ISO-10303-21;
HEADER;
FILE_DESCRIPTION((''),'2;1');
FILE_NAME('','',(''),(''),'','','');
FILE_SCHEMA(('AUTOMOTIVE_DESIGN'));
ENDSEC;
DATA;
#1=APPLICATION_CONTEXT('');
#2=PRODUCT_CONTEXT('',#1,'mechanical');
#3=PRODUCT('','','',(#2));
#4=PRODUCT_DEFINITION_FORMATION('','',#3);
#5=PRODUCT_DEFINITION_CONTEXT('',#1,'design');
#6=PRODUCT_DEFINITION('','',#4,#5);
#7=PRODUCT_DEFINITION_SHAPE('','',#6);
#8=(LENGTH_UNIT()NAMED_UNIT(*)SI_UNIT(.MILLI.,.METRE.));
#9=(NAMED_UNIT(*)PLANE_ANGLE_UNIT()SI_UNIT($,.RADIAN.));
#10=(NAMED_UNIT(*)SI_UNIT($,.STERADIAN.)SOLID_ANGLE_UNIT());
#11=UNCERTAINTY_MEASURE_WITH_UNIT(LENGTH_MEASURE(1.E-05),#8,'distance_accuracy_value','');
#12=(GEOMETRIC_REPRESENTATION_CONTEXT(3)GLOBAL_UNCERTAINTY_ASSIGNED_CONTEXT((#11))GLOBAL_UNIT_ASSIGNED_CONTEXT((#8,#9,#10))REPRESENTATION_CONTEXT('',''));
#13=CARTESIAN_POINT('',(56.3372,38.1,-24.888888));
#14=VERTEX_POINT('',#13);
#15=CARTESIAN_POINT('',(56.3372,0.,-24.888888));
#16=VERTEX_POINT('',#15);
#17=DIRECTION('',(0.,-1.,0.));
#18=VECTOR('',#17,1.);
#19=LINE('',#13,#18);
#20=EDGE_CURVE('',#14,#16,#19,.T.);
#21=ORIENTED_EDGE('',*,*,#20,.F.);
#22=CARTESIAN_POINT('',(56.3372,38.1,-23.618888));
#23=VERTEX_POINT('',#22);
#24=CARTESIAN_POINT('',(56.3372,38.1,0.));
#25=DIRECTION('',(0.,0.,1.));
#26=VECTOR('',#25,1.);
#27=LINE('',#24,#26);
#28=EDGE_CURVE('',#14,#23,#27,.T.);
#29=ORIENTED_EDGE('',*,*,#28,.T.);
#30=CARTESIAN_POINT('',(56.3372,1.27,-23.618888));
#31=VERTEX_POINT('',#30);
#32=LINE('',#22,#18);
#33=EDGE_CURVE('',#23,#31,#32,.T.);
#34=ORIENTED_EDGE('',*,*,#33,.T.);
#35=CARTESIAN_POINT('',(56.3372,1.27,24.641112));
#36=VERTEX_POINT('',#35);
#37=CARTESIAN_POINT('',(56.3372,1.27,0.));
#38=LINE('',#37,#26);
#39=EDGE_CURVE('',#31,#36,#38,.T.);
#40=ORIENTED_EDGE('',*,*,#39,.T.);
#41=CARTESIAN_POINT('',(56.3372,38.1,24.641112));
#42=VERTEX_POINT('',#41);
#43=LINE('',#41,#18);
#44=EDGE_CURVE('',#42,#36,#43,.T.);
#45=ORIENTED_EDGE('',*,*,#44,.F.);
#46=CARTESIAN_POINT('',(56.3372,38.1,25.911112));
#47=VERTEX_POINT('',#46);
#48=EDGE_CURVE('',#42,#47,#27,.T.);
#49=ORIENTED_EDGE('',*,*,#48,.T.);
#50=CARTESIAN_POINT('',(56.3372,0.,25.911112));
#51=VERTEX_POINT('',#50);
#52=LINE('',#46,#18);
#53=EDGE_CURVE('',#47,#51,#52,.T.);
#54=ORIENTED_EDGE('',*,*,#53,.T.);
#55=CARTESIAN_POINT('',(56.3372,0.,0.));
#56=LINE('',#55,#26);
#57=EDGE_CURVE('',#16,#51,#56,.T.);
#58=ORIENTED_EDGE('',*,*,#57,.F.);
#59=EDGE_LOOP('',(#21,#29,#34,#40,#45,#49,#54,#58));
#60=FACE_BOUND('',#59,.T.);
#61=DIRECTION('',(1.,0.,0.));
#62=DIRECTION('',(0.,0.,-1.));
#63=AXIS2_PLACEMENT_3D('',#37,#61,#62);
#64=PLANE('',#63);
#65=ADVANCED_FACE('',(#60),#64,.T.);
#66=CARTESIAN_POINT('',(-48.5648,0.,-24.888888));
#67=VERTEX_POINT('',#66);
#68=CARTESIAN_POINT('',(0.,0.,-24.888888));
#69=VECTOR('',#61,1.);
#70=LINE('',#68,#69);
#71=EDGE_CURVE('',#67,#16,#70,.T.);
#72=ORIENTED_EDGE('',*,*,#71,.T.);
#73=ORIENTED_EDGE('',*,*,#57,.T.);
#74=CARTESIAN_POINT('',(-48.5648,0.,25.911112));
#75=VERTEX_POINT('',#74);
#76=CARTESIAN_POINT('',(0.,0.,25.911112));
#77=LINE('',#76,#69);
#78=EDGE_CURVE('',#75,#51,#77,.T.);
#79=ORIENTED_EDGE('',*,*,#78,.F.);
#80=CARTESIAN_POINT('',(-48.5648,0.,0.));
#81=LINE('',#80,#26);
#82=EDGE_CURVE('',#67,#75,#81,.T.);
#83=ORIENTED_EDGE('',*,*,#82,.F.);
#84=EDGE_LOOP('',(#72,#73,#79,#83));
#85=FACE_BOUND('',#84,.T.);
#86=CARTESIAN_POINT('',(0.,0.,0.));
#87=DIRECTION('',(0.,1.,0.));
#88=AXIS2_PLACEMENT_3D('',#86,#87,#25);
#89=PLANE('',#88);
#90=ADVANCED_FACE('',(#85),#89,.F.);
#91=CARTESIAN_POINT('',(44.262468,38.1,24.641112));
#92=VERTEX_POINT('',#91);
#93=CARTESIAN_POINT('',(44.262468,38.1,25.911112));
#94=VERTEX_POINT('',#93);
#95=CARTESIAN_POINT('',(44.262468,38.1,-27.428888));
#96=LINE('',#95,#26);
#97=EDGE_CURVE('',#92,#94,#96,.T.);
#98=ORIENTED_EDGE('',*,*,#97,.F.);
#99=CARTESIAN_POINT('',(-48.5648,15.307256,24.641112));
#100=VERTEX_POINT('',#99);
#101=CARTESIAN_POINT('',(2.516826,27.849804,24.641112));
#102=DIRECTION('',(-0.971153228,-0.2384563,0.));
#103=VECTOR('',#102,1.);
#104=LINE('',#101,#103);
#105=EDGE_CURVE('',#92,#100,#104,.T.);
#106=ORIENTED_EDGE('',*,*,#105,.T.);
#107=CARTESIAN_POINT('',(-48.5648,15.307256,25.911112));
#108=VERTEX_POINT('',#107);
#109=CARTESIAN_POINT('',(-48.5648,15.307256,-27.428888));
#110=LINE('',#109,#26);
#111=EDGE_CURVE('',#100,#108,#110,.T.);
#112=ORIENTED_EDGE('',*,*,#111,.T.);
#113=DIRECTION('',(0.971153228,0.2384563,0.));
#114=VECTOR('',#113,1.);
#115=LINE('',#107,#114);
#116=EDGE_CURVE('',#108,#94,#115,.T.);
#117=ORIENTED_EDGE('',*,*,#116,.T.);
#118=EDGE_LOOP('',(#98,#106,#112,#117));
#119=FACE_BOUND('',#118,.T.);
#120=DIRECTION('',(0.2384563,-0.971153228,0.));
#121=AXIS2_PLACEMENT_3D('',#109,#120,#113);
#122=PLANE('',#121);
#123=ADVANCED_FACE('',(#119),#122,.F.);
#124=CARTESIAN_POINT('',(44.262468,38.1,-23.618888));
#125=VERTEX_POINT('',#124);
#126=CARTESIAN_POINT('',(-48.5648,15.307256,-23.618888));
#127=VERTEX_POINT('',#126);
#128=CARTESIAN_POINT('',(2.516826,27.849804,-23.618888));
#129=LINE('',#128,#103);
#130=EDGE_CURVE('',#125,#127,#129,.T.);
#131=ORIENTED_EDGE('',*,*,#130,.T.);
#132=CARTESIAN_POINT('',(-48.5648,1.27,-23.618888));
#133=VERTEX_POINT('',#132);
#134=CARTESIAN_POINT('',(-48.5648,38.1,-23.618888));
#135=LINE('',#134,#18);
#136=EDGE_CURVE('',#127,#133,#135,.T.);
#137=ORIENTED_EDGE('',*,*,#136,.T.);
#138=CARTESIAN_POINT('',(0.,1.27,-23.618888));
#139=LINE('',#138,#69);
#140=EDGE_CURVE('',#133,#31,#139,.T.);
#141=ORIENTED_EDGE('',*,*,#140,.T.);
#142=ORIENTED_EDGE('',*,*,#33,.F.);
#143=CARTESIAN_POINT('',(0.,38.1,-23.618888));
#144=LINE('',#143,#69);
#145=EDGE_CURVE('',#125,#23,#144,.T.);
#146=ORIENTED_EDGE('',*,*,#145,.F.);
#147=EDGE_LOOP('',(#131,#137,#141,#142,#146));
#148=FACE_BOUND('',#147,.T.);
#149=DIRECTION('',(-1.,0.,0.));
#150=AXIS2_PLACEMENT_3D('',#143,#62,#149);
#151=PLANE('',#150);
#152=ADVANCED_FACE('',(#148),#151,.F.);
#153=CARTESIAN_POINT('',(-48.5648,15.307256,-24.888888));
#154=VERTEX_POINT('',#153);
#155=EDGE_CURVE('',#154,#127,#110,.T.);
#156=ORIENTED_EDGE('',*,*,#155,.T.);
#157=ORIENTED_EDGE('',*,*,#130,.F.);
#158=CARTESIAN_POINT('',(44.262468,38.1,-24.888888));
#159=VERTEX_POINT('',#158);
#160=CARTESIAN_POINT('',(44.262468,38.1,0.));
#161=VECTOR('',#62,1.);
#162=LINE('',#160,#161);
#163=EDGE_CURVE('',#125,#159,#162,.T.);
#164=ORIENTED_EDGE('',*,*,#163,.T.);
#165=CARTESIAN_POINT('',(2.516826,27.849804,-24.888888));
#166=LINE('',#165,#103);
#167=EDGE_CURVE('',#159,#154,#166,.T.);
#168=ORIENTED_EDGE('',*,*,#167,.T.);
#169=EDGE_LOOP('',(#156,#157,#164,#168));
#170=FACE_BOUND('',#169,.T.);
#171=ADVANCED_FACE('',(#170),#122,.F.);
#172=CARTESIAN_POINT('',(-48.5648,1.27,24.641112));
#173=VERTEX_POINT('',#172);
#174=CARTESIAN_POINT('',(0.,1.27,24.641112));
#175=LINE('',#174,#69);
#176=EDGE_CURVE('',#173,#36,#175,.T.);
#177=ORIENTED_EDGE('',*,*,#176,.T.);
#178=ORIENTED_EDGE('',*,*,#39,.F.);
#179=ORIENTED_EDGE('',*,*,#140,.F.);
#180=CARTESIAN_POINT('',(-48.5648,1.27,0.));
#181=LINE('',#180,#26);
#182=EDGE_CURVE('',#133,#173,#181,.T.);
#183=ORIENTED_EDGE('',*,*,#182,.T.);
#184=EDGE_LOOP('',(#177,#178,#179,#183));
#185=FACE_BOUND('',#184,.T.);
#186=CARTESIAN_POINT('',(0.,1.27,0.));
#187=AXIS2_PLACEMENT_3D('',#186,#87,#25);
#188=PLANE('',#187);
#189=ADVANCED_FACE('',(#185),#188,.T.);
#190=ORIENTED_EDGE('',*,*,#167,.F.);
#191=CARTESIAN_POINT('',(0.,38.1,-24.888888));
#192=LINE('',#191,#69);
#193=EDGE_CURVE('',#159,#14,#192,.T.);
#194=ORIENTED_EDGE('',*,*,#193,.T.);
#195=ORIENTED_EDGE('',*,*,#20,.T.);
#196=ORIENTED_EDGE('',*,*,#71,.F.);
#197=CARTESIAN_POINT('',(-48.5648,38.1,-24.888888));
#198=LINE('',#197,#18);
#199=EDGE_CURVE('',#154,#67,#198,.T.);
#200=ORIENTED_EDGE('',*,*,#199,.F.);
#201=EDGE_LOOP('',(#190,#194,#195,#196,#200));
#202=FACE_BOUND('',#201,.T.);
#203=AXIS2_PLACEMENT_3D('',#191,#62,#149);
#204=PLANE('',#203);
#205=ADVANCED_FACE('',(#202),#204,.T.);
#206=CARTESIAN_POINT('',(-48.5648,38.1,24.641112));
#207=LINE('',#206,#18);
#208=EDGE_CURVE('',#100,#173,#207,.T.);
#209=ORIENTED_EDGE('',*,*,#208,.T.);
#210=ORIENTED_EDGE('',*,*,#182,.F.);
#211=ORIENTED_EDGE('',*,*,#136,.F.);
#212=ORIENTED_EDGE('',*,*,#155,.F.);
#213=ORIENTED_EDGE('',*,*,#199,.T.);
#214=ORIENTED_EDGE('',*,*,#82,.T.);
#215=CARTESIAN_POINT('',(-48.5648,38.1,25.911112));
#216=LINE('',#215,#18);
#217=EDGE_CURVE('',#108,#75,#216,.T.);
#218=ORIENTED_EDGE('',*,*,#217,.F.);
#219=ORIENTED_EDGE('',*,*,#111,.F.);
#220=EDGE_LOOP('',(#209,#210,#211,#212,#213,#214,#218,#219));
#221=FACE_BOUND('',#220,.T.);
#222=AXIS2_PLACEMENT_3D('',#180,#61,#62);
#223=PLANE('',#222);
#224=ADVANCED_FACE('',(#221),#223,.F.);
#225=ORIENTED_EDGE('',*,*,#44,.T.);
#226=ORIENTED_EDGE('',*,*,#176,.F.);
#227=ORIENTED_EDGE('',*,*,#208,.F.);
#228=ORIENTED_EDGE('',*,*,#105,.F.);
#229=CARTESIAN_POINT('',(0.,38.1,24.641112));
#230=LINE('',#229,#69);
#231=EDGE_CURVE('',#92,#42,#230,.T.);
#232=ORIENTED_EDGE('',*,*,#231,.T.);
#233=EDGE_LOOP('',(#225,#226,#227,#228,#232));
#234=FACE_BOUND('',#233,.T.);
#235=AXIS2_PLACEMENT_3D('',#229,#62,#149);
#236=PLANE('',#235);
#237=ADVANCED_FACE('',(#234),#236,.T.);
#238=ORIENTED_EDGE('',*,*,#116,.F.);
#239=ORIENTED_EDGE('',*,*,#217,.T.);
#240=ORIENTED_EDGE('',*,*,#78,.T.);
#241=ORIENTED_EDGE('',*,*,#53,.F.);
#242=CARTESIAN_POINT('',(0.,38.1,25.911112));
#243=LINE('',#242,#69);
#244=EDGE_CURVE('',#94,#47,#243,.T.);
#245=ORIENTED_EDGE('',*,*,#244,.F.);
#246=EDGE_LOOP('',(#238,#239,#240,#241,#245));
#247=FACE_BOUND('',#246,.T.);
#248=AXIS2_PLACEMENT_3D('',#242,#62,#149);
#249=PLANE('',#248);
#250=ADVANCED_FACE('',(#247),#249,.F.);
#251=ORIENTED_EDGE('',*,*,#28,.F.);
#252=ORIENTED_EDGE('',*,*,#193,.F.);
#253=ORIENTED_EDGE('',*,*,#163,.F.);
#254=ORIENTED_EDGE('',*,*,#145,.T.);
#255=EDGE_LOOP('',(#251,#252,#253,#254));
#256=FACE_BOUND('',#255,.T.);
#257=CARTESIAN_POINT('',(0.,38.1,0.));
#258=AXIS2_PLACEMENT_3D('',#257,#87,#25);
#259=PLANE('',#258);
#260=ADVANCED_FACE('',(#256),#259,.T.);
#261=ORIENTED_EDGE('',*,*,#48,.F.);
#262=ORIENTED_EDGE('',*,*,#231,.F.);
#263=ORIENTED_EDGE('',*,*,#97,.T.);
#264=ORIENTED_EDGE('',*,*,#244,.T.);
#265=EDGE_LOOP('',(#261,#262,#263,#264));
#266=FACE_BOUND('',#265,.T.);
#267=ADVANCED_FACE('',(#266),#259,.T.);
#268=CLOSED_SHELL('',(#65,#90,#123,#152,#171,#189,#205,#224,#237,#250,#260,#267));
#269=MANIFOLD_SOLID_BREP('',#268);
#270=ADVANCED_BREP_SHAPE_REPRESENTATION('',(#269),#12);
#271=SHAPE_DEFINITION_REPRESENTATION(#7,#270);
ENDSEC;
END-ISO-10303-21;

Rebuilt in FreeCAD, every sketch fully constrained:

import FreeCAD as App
import Part
import Sketcher
Q = App.Units.Quantity

doc = App.newDocument("Part")
body = doc.addObject("PartDesign::Body", "Body")

sketch1 = doc.addObject("Sketcher::SketchObject", "Sketch")
body.addObject(sketch1)
sketch1.AttachmentSupport = (doc.XZ_Plane, [""])
sketch1.MapMode = "FlatFace"
sketch1.addGeometry(Part.LineSegment(App.Vector(-48.5648, -23.618888, 0), App.Vector(-48.5648, 24.641112, 0)), False)
sketch1.addGeometry(Part.LineSegment(App.Vector(-48.5648, 24.641112, 0), App.Vector(56.3372, 24.641112, 0)), False)
sketch1.addGeometry(Part.LineSegment(App.Vector(56.3372, 24.641112, 0), App.Vector(56.3372, -23.618888, 0)), False)
sketch1.addGeometry(Part.LineSegment(App.Vector(56.3372, -23.618888, 0), App.Vector(-48.5648, -23.618888, 0)), False)
sketch1.addConstraint(Sketcher.Constraint("Coincident", 0, 2, 1, 1))
sketch1.addConstraint(Sketcher.Constraint("Coincident", 1, 2, 2, 1))
sketch1.addConstraint(Sketcher.Constraint("Coincident", 2, 2, 3, 1))
sketch1.addConstraint(Sketcher.Constraint("Coincident", 3, 2, 0, 1))
sketch1.addConstraint(Sketcher.Constraint("Vertical", 0))
sketch1.addConstraint(Sketcher.Constraint("Horizontal", 1))
sketch1.addConstraint(Sketcher.Constraint("Vertical", 2))
sketch1.addConstraint(Sketcher.Constraint("Horizontal", 3))
sketch1.addConstraint(Sketcher.Constraint("DistanceY", 0, 1, 0, 2, Q("1.9 in")))
sketch1.addConstraint(Sketcher.Constraint("DistanceX", 1, 1, 1, 2, Q("4.13 in")))
sketch1.addConstraint(Sketcher.Constraint("DistanceX", 0, 2, -1, 1, Q("1.912 in")))
sketch1.addConstraint(Sketcher.Constraint("DistanceY", -1, 1, 0, 2, 24.641112))
pad1 = doc.addObject("PartDesign::Pad", "Pad")
body.addObject(pad1)
pad1.Profile = sketch1
pad1.Length = Q("0.05 in")
pad1.Reversed = True

sketch2 = doc.addObject("Sketcher::SketchObject", "Sketch001")
body.addObject(sketch2)
sketch2.AttachmentSupport = (doc.XZ_Plane, [""])
sketch2.MapMode = "FlatFace"
sketch2.addGeometry(Part.LineSegment(App.Vector(-48.5648, 24.641112, 0), App.Vector(-48.5648, 25.911112, 0)), False)
sketch2.addGeometry(Part.LineSegment(App.Vector(-48.5648, 25.911112, 0), App.Vector(56.3372, 25.911112, 0)), False)
sketch2.addGeometry(Part.LineSegment(App.Vector(56.3372, 25.911112, 0), App.Vector(56.3372, 24.641112, 0)), False)
sketch2.addGeometry(Part.LineSegment(App.Vector(56.3372, 24.641112, 0), App.Vector(-48.5648, 24.641112, 0)), False)
sketch2.addGeometry(Part.LineSegment(App.Vector(-48.5648, -24.888888, 0), App.Vector(-48.5648, -23.618888, 0)), False)
sketch2.addGeometry(Part.LineSegment(App.Vector(-48.5648, -23.618888, 0), App.Vector(56.3372, -23.618888, 0)), False)
sketch2.addGeometry(Part.LineSegment(App.Vector(56.3372, -23.618888, 0), App.Vector(56.3372, -24.888888, 0)), False)
sketch2.addGeometry(Part.LineSegment(App.Vector(56.3372, -24.888888, 0), App.Vector(-48.5648, -24.888888, 0)), False)
sketch2.addConstraint(Sketcher.Constraint("Coincident", 0, 2, 1, 1))
sketch2.addConstraint(Sketcher.Constraint("Coincident", 1, 2, 2, 1))
sketch2.addConstraint(Sketcher.Constraint("Coincident", 2, 2, 3, 1))
sketch2.addConstraint(Sketcher.Constraint("Coincident", 3, 2, 0, 1))
sketch2.addConstraint(Sketcher.Constraint("Coincident", 4, 2, 5, 1))
sketch2.addConstraint(Sketcher.Constraint("Coincident", 5, 2, 6, 1))
sketch2.addConstraint(Sketcher.Constraint("Coincident", 6, 2, 7, 1))
sketch2.addConstraint(Sketcher.Constraint("Coincident", 7, 2, 4, 1))
sketch2.addConstraint(Sketcher.Constraint("Vertical", 0))
sketch2.addConstraint(Sketcher.Constraint("Horizontal", 1))
sketch2.addConstraint(Sketcher.Constraint("Vertical", 2))
sketch2.addConstraint(Sketcher.Constraint("Horizontal", 3))
sketch2.addConstraint(Sketcher.Constraint("Vertical", 4))
sketch2.addConstraint(Sketcher.Constraint("Horizontal", 5))
sketch2.addConstraint(Sketcher.Constraint("Vertical", 6))
sketch2.addConstraint(Sketcher.Constraint("Horizontal", 7))
sketch2.addConstraint(Sketcher.Constraint("Vertical", 3, 2, 4, 2))
sketch2.addConstraint(Sketcher.Constraint("Vertical", 2, 2, 5, 2))
sketch2.addConstraint(Sketcher.Constraint("Equal", 2, 4))
sketch2.addConstraint(Sketcher.Constraint("DistanceY", 6, 2, 1, 2, Q("2 in")))
sketch2.addConstraint(Sketcher.Constraint("DistanceX", 1, 1, 1, 2, Q("4.13 in")))
sketch2.addConstraint(Sketcher.Constraint("DistanceY", 0, 1, 0, 2, Q("0.05 in")))
sketch2.addConstraint(Sketcher.Constraint("DistanceX", 0, 2, -1, 1, Q("1.912 in")))
sketch2.addConstraint(Sketcher.Constraint("DistanceY", -1, 1, 0, 2, 25.911112))
pad2 = doc.addObject("PartDesign::Pad", "Pad001")
body.addObject(pad2)
pad2.Profile = sketch2
pad2.Length = Q("1.5 in")
pad2.Reversed = True

sketch3 = doc.addObject("Sketcher::SketchObject", "Sketch002")
body.addObject(sketch3)
sketch3.AttachmentSupport = (doc.XY_Plane, [""])
sketch3.MapMode = "FlatFace"
sketch3.AttachmentOffset = App.Placement(App.Vector(0, 0, 25.911112), App.Rotation())
sketch3.addGeometry(Part.LineSegment(App.Vector(-48.5648, 15.307256, 0), App.Vector(44.262468, 38.1, 0)), False)
sketch3.addGeometry(Part.LineSegment(App.Vector(44.262468, 38.1, 0), App.Vector(-48.5648, 38.1, 0)), False)
sketch3.addGeometry(Part.LineSegment(App.Vector(-48.5648, 38.1, 0), App.Vector(-48.5648, 15.307256, 0)), False)
sketch3.addConstraint(Sketcher.Constraint("Coincident", 0, 2, 1, 1))
sketch3.addConstraint(Sketcher.Constraint("Coincident", 1, 2, 2, 1))
sketch3.addConstraint(Sketcher.Constraint("Coincident", 2, 2, 0, 1))
sketch3.addConstraint(Sketcher.Constraint("Horizontal", 1))
sketch3.addConstraint(Sketcher.Constraint("Vertical", 2))
sketch3.addConstraint(Sketcher.Constraint("DistanceY", -1, 1, 0, 2, Q("1.5 in")))
sketch3.addConstraint(Sketcher.Constraint("DistanceX", 1, 2, -1, 1, Q("1.912 in")))
sketch3.addConstraint(Sketcher.Constraint("DistanceX", 1, 2, 1, 1, 92.827268))
sketch3.addConstraint(Sketcher.Constraint("DistanceY", 2, 2, 2, 1, 22.792744))
pocket1 = doc.addObject("PartDesign::Pocket", "Pocket")
body.addObject(pocket1)
pocket1.Profile = sketch3
pocket1.Length = Q("2.1 in")

doc.recompute()
